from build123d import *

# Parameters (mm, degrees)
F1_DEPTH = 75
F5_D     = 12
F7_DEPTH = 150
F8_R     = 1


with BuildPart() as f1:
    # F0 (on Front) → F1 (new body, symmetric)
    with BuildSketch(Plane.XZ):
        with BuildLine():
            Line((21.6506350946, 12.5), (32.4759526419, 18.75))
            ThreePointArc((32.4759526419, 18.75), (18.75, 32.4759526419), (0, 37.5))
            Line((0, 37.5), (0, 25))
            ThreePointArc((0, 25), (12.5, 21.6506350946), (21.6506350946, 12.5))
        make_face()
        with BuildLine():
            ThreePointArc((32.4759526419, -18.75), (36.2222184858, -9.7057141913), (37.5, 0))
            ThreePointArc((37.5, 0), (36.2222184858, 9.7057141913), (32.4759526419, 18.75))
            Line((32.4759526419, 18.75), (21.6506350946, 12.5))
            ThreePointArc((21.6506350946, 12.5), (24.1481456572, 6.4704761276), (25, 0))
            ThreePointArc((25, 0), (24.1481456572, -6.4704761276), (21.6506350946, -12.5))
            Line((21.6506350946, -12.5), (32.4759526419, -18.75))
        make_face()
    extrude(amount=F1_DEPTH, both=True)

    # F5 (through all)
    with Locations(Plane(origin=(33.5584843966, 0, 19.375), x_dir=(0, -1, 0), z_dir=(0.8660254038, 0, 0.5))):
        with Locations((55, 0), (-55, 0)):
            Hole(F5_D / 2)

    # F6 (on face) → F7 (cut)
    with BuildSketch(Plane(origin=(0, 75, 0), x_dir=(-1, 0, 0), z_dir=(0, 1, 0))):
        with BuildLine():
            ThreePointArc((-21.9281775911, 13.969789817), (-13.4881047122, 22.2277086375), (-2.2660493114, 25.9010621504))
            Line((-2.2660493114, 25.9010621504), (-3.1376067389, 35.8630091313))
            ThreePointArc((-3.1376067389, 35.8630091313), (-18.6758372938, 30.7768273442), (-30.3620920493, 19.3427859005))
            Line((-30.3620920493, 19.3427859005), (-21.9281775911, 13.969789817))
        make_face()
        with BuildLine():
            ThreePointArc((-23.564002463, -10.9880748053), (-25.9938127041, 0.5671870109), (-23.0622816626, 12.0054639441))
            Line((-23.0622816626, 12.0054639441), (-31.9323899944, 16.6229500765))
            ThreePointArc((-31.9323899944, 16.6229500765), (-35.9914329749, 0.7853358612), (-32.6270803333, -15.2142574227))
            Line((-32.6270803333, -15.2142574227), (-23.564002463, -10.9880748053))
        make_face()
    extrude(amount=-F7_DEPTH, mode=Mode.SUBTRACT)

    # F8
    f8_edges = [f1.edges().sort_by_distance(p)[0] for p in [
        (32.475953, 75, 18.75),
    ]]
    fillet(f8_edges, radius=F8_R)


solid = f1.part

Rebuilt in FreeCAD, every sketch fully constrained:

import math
import FreeCAD as App
import Part
import Sketcher

V = App.Vector
Q = App.Units.Quantity


def edges_at(feature, points):
    """Names of the edges that pass closest to the given points."""
    edges = feature.Shape.Edges
    near = lambda p: min(range(len(edges)), key=lambda i: edges[i].distToShape(Part.Vertex(*p))[0])
    return sorted({f"Edge{near(p) + 1}" for p in points})

doc = App.newDocument("Part")
params = doc.addObject("Spreadsheet::Sheet", "Params")
for row, (alias, value) in enumerate([
    ("sketch1_radius", "25 mm"),
    ("sketch1_radius2", "37.5 mm"),
    ("pad1_length", "150 mm"),
    ("sketch2_diameter", "12 mm"),
    ("hole_diameter", "12 mm"),
    ("sketch3_radius", "26 mm"),
    ("sketch3_radius2", "36 mm"),
    ("pocket1_length", "150 mm"),
    ("fillet_radius", "1 mm"),
], start=1):
    params.set(f"A{row}", alias)
    params.set(f"B{row}", "=" + value)
    params.setAlias(f"B{row}", alias)

body = doc.addObject("PartDesign::Body", "Body")

# Sketch on XZ plane
sketch1 = doc.addObject("Sketcher::SketchObject", "Sketch")
body.addObject(sketch1)
sketch1.AttachmentSupport = (doc.XZ_Plane, [""])
sketch1.MapMode = "FlatFace"
sketch1.addGeometry([
    Part.ArcOfCircle(Part.Circle(V(0, 0, 0), V(0, 0, 1), 38), math.radians(30), math.radians(90)),  # 0
    Part.LineSegment(V(0, 38, 0), V(0, 25, 0)),  # 1
    Part.ArcOfCircle(Part.Circle(V(0, 0, 0), V(0, 0, 1), 25), math.radians(30), math.radians(90)),  # 2
    Part.ArcOfCircle(Part.Circle(V(0, 0, 0), V(0, 0, 1), 25), math.radians(0), math.radians(30)),  # 3
    Part.ArcOfCircle(Part.Circle(V(0, 0, 0), V(0, 0, 1), 25), math.radians(-30), math.radians(0)),  # 4
    Part.LineSegment(V(22, -12, 0), V(32, -19, 0)),  # 5
    Part.ArcOfCircle(Part.Circle(V(0, 0, 0), V(0, 0, 1), 38), math.radians(-30), math.radians(0)),  # 6
    Part.ArcOfCircle(Part.Circle(V(0, 0, 0), V(0, 0, 1), 38), math.radians(0), math.radians(30)),  # 7
], False)
sketch1.addConstraint([
    Sketcher.Constraint("Coincident", 0, 2, 1, 1),
    Sketcher.Constraint("Coincident", 1, 2, 2, 2),
    Sketcher.Constraint("Tangent", 2, 1, 3, 2),
    Sketcher.Constraint("Tangent", 3, 1, 4, 2),
    Sketcher.Constraint("Coincident", 4, 1, 5, 1),
    Sketcher.Constraint("Coincident", 5, 2, 6, 1),
    Sketcher.Constraint("Tangent", 6, 2, 7, 1),
    Sketcher.Constraint("Tangent", 7, 2, 0, 1),
    Sketcher.Constraint("Vertical", 1),
    Sketcher.Constraint("Coincident", 0, 3, -1, 1),
    Sketcher.Constraint("Coincident", 2, 3, -1, 1),
    Sketcher.Constraint("Coincident", 4, 3, -1, 1),
    Sketcher.Constraint("Coincident", 6, 3, -1, 1),
    Sketcher.Constraint("PointOnObject", 0, 2, -2),
    Sketcher.Constraint("PointOnObject", 3, 1, -1),
    Sketcher.Constraint("PointOnObject", 6, 2, -1),
    Sketcher.Constraint("Vertical", 2, 1, 4, 1),
    Sketcher.Constraint("Vertical", 5, 2, 7, 2),
    Sketcher.Constraint("Radius", 2, 25.0),
    Sketcher.Constraint("Radius", 0, 37.5),
    Sketcher.Constraint("Angle", 5, Q("-30 deg")),
    Sketcher.Constraint("DistanceY", 4, 1, 2, 1, 25.0),
])
sketch1.setExpression("Constraints[18]", "Params.sketch1_radius")
sketch1.setExpression("Constraints[19]", "Params.sketch1_radius2")
pad1 = doc.addObject("PartDesign::Pad", "Pad")
body.addObject(pad1)
pad1.Profile = sketch1
pad1.setExpression("Length", "Params.pad1_length")
pad1.Midplane = True

# Sketch on an angled plane
sketch2 = doc.addObject("Sketcher::SketchObject", "Sketch001")
body.addObject(sketch2)
sketch2.Placement = App.Placement(V(33.558484, 0, 19.375), App.Rotation(V(0, -1, 0), V(0.5, 0, -0.866025404), V(0.866025404, 0, 0.5), "ZXY"))
sketch2.addGeometry([
    Part.Circle(V(55, 0, 0), V(0, 0, 1), 6),
    Part.Circle(V(-55, 0, 0), V(0, 0, 1), 6),
], False)
sketch2.addConstraint([
    Sketcher.Constraint("Equal", 0, 1),
    Sketcher.Constraint("Symmetric", 0, 3, 1, 3, -1, 1),
    Sketcher.Constraint("PointOnObject", 0, 3, -1),
    Sketcher.Constraint("Diameter", 0, 12.0),
    Sketcher.Constraint("DistanceX", -1, 1, 0, 3, 55.0),
])
sketch2.setExpression("Constraints[3]", "Params.sketch2_diameter")
doc.recompute()
hole = doc.addObject("PartDesign::Hole", "Hole")
body.addObject(hole)
hole.Profile = sketch2
hole.ThreadType = "None"
hole.setExpression("Diameter", "Params.hole_diameter")
hole.DepthType = "ThroughAll"

# Sketch on XZ plane
sketch3 = doc.addObject("Sketcher::SketchObject", "Sketch002")
body.addObject(sketch3)
sketch3.AttachmentSupport = (doc.XZ_Plane, [""])
sketch3.MapMode = "FlatFace"
sketch3.AttachmentOffset = App.Placement(V(0, 0, -75), App.Rotation())
sketch3.addGeometry([
    Part.ArcOfCircle(Part.Circle(V(0, 0, 0), V(0, 0, 1), 26), math.radians(33), math.radians(85)),  # 0
    Part.LineSegment(V(2, 26, 0), V(3, 36, 0)),  # 1
    Part.ArcOfCircle(Part.Circle(V(0, 0, 0), V(0, 0, 1), 36), math.radians(33), math.radians(85)),  # 2
    Part.LineSegment(V(30, 19, 0), V(22, 14, 0)),  # 3
    Part.ArcOfCircle(Part.Circle(V(0, 0, 0), V(0, 0, 1), 26), math.radians(-25), math.radians(27)),  # 4
    Part.LineSegment(V(23, 12, 0), V(32, 17, 0)),  # 5
    Part.ArcOfCircle(Part.Circle(V(0, 0, 0), V(0, 0, 1), 36), math.radians(-25), math.radians(28)),  # 6
    Part.LineSegment(V(33, -15, 0), V(24, -11, 0)),  # 7
], False)
sketch3.addConstraint([
    Sketcher.Constraint("Coincident", 0, 2, 1, 1),
    Sketcher.Constraint("Coincident", 1, 2, 2, 2),
    Sketcher.Constraint("Coincident", 2, 1, 3, 1),
    Sketcher.Constraint("Coincident", 3, 2, 0, 1),
    Sketcher.Constraint("Coincident", 4, 2, 5, 1),
    Sketcher.Constraint("Coincident", 5, 2, 6, 2),
    Sketcher.Constraint("Coincident", 6, 1, 7, 1),
    Sketcher.Constraint("Coincident", 7, 2, 4, 1),
    Sketcher.Constraint("Coincident", 0, 3, -1, 1),
    Sketcher.Constraint("Coincident", 2, 3, -1, 1),
    Sketcher.Constraint("Coincident", 4, 3, -1, 1),
    Sketcher.Constraint("Coincident", 6, 3, -1, 1),
    Sketcher.Constraint("Equal", 0, 4),
    Sketcher.Constraint("Equal", 2, 6),
    Sketcher.Constraint("Radius", 0, 26.0),
    Sketcher.Constraint("Radius", 2, 36.0),
    Sketcher.Constraint("Angle", 1, Q("85 deg")),
    Sketcher.Constraint("Angle", 7, Q("155 deg")),
    Sketcher.Constraint("Angle", 3, Q("-147.5 deg")),
    Sketcher.Constraint("Angle", 5, Q("27.5 deg")),
    Sketcher.Constraint("DistanceY", 4, 2, 0, 2, 13.895598),
    Sketcher.Constraint("DistanceX", 4, 2, 6, 1, 9.564799),
    Sketcher.Constraint("DistanceX", -1, 1, 0, 2, 2.266049),
    Sketcher.Constraint("DistanceY", -1, 1, 3, 2, 13.96979),
])
sketch3.setExpression("Constraints[14]", "Params.sketch3_radius")
sketch3.setExpression("Constraints[15]", "Params.sketch3_radius2")
pocket1 = doc.addObject("PartDesign::Pocket", "Pocket")
body.addObject(pocket1)
pocket1.Profile = sketch3
pocket1.setExpression("Length", "Params.pocket1_length")
pocket1.Reversed = True
doc.recompute()

fillet = doc.addObject("PartDesign::Fillet", "Fillet")
body.addObject(fillet)
fillet.Base = (pocket1, edges_at(pocket1, [(36.222, 75, 9.706)]))
fillet.setExpression("Radius", "Params.fillet_radius")

doc.recompute()
